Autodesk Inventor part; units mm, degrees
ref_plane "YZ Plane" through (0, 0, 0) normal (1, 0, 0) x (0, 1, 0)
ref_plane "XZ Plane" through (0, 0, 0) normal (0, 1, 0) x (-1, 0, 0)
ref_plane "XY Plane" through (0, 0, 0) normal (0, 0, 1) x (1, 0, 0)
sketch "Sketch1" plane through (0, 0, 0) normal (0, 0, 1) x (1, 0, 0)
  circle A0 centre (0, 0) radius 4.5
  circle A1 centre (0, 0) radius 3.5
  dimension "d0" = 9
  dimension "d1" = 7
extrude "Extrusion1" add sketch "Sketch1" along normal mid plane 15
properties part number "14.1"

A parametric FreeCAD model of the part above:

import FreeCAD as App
import Part
import Sketcher

V = App.Vector

doc = App.newDocument("Part")
body = doc.addObject("PartDesign::Body", "Body")

# Sketch on XY plane
sketch1 = body.newObject("Sketcher::SketchObject", "Sketch")
sketch1.AttachmentSupport = (doc.getObject("XY_Plane"), [""])
sketch1.MapMode = "FlatFace"
sketch1.addGeometry([
    Part.Circle(V(0, 0, 0), V(0, 0, 1), 4.5),
    Part.Circle(V(0, 0, 0), V(0, 0, 1), 3.5),
], False)
sketch1.addConstraint([
    Sketcher.Constraint("Coincident", 0, 3, -1, 1),
    Sketcher.Constraint("Coincident", 1, 3, -1, 1),
    Sketcher.Constraint("Diameter", 0, 9.0),
    Sketcher.Constraint("Diameter", 1, 7.0),
])
pad1 = body.newObject("PartDesign::Pad", "Pad")
pad1.Profile = sketch1
pad1.Length = 15
pad1.Midplane = True

doc.recompute()
